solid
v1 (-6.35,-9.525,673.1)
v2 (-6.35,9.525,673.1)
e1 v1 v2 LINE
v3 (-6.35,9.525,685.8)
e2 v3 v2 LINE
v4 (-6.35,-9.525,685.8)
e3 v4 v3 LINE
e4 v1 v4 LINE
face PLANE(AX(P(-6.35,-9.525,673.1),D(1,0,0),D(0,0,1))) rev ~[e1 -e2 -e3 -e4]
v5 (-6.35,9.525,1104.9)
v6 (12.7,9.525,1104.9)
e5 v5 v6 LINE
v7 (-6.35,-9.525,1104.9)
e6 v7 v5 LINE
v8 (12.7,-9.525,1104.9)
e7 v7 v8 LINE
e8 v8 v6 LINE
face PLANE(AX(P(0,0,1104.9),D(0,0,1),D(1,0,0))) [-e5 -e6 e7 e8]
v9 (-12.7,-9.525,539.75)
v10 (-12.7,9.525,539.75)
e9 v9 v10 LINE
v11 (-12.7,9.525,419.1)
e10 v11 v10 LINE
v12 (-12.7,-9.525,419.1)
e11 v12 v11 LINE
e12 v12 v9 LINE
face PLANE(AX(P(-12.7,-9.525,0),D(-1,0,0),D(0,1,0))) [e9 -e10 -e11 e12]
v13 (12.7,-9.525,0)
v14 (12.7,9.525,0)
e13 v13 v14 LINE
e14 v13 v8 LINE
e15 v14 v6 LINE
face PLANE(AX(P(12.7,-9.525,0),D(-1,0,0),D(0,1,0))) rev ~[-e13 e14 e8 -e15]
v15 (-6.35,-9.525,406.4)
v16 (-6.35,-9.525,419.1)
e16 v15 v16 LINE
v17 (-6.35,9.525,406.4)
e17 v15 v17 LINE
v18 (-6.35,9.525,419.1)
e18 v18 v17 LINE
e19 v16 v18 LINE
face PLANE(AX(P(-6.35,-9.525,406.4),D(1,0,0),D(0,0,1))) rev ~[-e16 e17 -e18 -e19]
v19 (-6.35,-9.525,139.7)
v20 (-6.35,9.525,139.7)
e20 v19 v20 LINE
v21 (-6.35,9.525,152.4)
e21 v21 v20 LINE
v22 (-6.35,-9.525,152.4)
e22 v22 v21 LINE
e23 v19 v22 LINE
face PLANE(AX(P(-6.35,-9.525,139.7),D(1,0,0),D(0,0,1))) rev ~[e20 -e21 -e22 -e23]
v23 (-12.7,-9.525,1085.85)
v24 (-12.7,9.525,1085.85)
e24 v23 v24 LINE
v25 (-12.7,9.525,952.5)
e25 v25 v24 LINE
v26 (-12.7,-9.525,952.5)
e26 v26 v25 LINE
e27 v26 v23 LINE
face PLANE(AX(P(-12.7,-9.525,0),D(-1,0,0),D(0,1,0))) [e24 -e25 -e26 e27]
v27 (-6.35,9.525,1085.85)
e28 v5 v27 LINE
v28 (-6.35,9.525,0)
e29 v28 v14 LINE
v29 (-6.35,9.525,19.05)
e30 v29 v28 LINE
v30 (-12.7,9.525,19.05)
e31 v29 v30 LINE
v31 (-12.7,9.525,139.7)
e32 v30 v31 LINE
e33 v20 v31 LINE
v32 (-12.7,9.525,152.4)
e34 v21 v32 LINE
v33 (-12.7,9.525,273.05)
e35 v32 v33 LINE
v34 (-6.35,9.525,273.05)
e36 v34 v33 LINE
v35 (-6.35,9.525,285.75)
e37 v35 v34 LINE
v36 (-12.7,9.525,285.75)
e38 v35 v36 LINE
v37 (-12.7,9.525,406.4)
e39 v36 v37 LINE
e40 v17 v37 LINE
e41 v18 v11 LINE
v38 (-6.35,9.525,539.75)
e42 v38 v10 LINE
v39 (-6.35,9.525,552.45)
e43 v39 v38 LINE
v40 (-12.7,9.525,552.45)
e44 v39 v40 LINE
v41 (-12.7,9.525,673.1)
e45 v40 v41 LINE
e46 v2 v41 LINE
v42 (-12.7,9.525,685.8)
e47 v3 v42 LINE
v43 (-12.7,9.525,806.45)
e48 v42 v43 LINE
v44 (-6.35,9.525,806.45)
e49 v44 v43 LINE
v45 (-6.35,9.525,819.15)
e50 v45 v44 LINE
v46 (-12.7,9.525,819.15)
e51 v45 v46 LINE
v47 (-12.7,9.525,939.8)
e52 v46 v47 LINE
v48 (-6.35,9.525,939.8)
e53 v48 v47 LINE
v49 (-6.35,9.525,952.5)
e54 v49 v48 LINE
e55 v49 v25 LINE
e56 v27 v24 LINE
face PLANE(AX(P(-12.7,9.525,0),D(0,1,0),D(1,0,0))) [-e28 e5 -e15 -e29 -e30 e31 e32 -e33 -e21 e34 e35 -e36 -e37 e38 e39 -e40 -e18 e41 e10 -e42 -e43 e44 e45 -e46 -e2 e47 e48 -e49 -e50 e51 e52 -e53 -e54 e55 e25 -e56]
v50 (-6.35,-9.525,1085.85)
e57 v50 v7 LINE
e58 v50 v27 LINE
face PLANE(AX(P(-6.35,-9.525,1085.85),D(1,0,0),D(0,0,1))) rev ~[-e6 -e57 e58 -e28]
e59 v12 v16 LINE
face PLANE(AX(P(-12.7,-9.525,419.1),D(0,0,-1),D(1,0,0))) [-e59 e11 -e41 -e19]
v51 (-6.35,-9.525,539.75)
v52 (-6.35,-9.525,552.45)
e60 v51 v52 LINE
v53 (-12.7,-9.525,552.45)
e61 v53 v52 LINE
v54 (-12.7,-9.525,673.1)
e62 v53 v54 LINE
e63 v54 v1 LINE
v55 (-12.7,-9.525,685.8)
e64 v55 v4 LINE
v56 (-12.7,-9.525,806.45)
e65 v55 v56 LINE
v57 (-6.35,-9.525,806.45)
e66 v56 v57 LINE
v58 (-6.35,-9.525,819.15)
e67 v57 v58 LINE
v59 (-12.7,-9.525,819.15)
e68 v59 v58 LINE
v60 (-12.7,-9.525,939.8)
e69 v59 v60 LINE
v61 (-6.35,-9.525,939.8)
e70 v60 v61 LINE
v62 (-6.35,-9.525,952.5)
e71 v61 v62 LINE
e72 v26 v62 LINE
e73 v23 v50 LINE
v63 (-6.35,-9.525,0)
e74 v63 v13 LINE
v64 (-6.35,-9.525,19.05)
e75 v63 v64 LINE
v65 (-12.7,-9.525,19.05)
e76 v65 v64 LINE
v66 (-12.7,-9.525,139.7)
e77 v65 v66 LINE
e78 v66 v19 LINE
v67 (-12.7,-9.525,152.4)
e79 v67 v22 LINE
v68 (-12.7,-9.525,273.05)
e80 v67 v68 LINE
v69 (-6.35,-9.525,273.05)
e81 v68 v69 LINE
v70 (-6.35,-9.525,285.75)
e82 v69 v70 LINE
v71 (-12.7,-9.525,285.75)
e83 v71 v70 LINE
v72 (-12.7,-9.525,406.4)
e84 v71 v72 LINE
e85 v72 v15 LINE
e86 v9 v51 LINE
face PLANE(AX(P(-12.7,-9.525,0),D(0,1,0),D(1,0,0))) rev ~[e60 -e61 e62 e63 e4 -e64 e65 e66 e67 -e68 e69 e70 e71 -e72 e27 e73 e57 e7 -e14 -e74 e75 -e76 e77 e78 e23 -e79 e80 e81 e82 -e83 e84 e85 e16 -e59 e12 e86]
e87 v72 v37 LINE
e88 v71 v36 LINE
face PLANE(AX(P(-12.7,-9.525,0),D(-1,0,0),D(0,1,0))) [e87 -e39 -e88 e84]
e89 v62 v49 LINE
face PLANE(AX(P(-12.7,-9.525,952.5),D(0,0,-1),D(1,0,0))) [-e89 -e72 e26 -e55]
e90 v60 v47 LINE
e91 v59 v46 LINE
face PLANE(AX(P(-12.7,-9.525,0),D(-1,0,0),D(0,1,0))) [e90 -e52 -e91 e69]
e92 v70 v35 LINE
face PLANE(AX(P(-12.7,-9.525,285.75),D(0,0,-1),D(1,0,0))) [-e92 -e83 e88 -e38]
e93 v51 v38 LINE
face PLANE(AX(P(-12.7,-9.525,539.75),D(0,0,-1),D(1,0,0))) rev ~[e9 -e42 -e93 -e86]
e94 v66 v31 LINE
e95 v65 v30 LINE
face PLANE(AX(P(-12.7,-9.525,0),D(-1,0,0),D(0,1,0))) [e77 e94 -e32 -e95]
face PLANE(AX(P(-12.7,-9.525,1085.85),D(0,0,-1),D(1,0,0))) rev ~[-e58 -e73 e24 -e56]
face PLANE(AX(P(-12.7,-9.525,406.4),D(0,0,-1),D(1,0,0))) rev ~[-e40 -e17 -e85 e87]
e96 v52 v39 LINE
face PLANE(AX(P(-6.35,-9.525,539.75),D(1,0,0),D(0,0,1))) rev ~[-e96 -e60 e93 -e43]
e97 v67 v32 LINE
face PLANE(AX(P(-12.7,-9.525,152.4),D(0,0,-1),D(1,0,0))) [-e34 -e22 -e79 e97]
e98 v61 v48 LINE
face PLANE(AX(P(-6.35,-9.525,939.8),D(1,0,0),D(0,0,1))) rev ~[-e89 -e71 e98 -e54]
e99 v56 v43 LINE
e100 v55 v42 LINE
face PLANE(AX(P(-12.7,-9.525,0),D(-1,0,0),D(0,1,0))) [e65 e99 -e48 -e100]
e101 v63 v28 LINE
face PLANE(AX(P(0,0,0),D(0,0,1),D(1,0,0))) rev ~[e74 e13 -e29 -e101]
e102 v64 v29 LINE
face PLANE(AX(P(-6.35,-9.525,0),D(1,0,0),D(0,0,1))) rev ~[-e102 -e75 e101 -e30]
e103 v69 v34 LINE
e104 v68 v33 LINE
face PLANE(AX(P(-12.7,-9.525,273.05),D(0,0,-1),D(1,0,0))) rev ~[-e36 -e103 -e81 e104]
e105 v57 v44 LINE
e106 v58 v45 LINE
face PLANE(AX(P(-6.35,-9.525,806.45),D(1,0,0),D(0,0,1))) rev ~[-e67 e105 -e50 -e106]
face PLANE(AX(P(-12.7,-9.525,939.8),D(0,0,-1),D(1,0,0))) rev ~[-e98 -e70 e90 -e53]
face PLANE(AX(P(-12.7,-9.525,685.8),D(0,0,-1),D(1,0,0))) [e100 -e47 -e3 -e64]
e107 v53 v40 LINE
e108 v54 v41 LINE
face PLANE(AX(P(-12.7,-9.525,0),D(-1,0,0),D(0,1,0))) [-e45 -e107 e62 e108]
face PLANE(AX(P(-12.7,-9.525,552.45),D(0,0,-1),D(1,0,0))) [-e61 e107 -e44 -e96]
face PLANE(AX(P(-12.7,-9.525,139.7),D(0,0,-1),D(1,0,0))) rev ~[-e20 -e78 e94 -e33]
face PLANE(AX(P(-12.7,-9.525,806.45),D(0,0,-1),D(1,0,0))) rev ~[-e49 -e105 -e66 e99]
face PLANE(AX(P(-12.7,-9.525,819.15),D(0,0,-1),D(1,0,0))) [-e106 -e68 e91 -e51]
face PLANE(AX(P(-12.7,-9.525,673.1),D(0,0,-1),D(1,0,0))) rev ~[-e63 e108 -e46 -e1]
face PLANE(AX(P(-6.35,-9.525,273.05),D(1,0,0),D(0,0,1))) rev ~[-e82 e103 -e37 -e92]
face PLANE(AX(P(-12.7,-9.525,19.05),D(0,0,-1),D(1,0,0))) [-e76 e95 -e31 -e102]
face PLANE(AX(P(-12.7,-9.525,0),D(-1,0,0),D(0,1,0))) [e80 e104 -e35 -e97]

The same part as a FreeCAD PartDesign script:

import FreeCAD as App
import Part
import Sketcher
from FreeCAD import Vector
Q = App.Units.Quantity

doc = App.newDocument("Part")
params = doc.addObject("Spreadsheet::Sheet", "Params")
for row, (alias, value) in enumerate([
    ("sketch1_width", "1 in"),
    ("sketch1_height", "0.75 in"),
    ("pad1_length", "43.5 in"),
    ("sketch2_height", "0.5 in"),
    ("sketch2_width", "0.25 in"),
    ("sketch2_height2", "0.75 in"),
], start=1):
    params.set(f"A{row}", alias)
    params.set(f"B{row}", "=" + value)
    params.setAlias(f"B{row}", alias)

body = doc.addObject("PartDesign::Body", "Body")

# Sketch on XY plane
sketch1 = body.newObject("Sketcher::SketchObject", "Sketch")
sketch1.AttachmentSupport = (doc.getObject("XY_Plane"), [""])
sketch1.MapMode = "FlatFace"
sketch1.addGeometry([
    Part.LineSegment(Vector(-13, 10, 0), Vector(-13, -10, 0)),
    Part.LineSegment(Vector(-13, -10, 0), Vector(13, -10, 0)),
    Part.LineSegment(Vector(13, -10, 0), Vector(13, 10, 0)),
    Part.LineSegment(Vector(13, 10, 0), Vector(-13, 10, 0)),
], False)
sketch1.addConstraint([
    Sketcher.Constraint("Coincident", 0, 2, 1, 1),
    Sketcher.Constraint("Coincident", 1, 2, 2, 1),
    Sketcher.Constraint("Coincident", 2, 2, 3, 1),
    Sketcher.Constraint("Coincident", 3, 2, 0, 1),
    Sketcher.Constraint("Vertical", 0),
    Sketcher.Constraint("Horizontal", 1),
    Sketcher.Constraint("Vertical", 2),
    Sketcher.Constraint("Horizontal", 3),
    Sketcher.Constraint("Symmetric", 0, 2, 2, 2, -1, 1),
    Sketcher.Constraint("DistanceX", 1, 1, 1, 2, Q("1 in")),
    Sketcher.Constraint("DistanceY", 0, 2, 0, 1, Q("0.75 in")),
])
sketch1.setExpression("Constraints[9]", "Params.sketch1_width")
sketch1.setExpression("Constraints[10]", "Params.sketch1_height")
pad1 = body.newObject("PartDesign::Pad", "Pad")
pad1.Profile = sketch1
pad1.setExpression("Length", "Params.pad1_length")

# Sketch on XZ plane
sketch2 = body.newObject("Sketcher::SketchObject", "Sketch001")
sketch2.AttachmentSupport = (doc.getObject("XZ_Plane"), [""])
sketch2.MapMode = "FlatFace"
sketch2.AttachmentOffset = App.Placement(Vector(0, 0, 0.375 * 25.4), App.Rotation())
sketch2.addGeometry([
    Part.LineSegment(Vector(-13, 19, 0), Vector(-13, 0, 0)),  # 0
    Part.LineSegment(Vector(-13, 0, 0), Vector(-6, 0, 0)),  # 1
    Part.LineSegment(Vector(-6, 0, 0), Vector(-6, 19, 0)),  # 2
    Part.LineSegment(Vector(-6, 19, 0), Vector(-13, 19, 0)),  # 3
    Part.LineSegment(Vector(-13, 152, 0), Vector(-13, 140, 0)),  # 4
    Part.LineSegment(Vector(-13, 140, 0), Vector(-6, 140, 0)),  # 5
    Part.LineSegment(Vector(-6, 140, 0), Vector(-6, 152, 0)),  # 6
    Part.LineSegment(Vector(-6, 152, 0), Vector(-13, 152, 0)),  # 7
    Part.LineSegment(Vector(-13, 286, 0), Vector(-13, 273, 0)),  # 8
    Part.LineSegment(Vector(-13, 273, 0), Vector(-6, 273, 0)),  # 9
    Part.LineSegment(Vector(-6, 273, 0), Vector(-6, 286, 0)),  # 10
    Part.LineSegment(Vector(-6, 286, 0), Vector(-13, 286, 0)),  # 11
    Part.LineSegment(Vector(-13, 419, 0), Vector(-13, 406, 0)),  # 12
    Part.LineSegment(Vector(-13, 406, 0), Vector(-6, 406, 0)),  # 13
    Part.LineSegment(Vector(-6, 406, 0), Vector(-6, 419, 0)),  # 14
    Part.LineSegment(Vector(-6, 419, 0), Vector(-13, 419, 0)),  # 15
    Part.LineSegment(Vector(-13, 552, 0), Vector(-13, 540, 0)),  # 16
    Part.LineSegment(Vector(-13, 540, 0), Vector(-6, 540, 0)),  # 17
    Part.LineSegment(Vector(-6, 540, 0), Vector(-6, 552, 0)),  # 18
    Part.LineSegment(Vector(-6, 552, 0), Vector(-13, 552, 0)),  # 19
    Part.LineSegment(Vector(-13, 686, 0), Vector(-13, 673, 0)),  # 20
    Part.LineSegment(Vector(-13, 673, 0), Vector(-6, 673, 0)),  # 21
    Part.LineSegment(Vector(-6, 673, 0), Vector(-6, 686, 0)),  # 22
    Part.LineSegment(Vector(-6, 686, 0), Vector(-13, 686, 0)),  # 23
    Part.LineSegment(Vector(-13, 819, 0), Vector(-13, 806, 0)),  # 24
    Part.LineSegment(Vector(-13, 806, 0), Vector(-6, 806, 0)),  # 25
    Part.LineSegment(Vector(-6, 806, 0), Vector(-6, 819, 0)),  # 26
    Part.LineSegment(Vector(-6, 819, 0), Vector(-13, 819, 0)),  # 27
    Part.LineSegment(Vector(-13, 952, 0), Vector(-13, 940, 0)),  # 28
    Part.LineSegment(Vector(-13, 940, 0), Vector(-6, 940, 0)),  # 29
    Part.LineSegment(Vector(-6, 940, 0), Vector(-6, 952, 0)),  # 30
    Part.LineSegment(Vector(-6, 952, 0), Vector(-13, 952, 0)),  # 31
    Part.LineSegment(Vector(-13, 1105, 0), Vector(-13, 1086, 0)),  # 32
    Part.LineSegment(Vector(-13, 1086, 0), Vector(-6, 1086, 0)),  # 33
    Part.LineSegment(Vector(-6, 1086, 0), Vector(-6, 1105, 0)),  # 34
    Part.LineSegment(Vector(-6, 1105, 0), Vector(-13, 1105, 0)),  # 35
], False)
sketch2.addConstraint([
    Sketcher.Constraint("Coincident", 0, 2, 1, 1),
    Sketcher.Constraint("Coincident", 1, 2, 2, 1),
    Sketcher.Constraint("Coincident", 2, 2, 3, 1),
    Sketcher.Constraint("Coincident", 3, 2, 0, 1),
    Sketcher.Constraint("Coincident", 4, 2, 5, 1),
    Sketcher.Constraint("Coincident", 5, 2, 6, 1),
    Sketcher.Constraint("Coincident", 6, 2, 7, 1),
    Sketcher.Constraint("Coincident", 7, 2, 4, 1),
    Sketcher.Constraint("Coincident", 8, 2, 9, 1),
    Sketcher.Constraint("Coincident", 9, 2, 10, 1),
    Sketcher.Constraint("Coincident", 10, 2, 11, 1),
    Sketcher.Constraint("Coincident", 11, 2, 8, 1),
    Sketcher.Constraint("Coincident", 12, 2, 13, 1),
    Sketcher.Constraint("Coincident", 13, 2, 14, 1),
    Sketcher.Constraint("Coincident", 14, 2, 15, 1),
    Sketcher.Constraint("Coincident", 15, 2, 12, 1),
    Sketcher.Constraint("Coincident", 16, 2, 17, 1),
    Sketcher.Constraint("Coincident", 17, 2, 18, 1),
    Sketcher.Constraint("Coincident", 18, 2, 19, 1),
    Sketcher.Constraint("Coincident", 19, 2, 16, 1),
    Sketcher.Constraint("Coincident", 20, 2, 21, 1),
    Sketcher.Constraint("Coincident", 21, 2, 22, 1),
    Sketcher.Constraint("Coincident", 22, 2, 23, 1),
    Sketcher.Constraint("Coincident", 23, 2, 20, 1),
    Sketcher.Constraint("Coincident", 24, 2, 25, 1),
    Sketcher.Constraint("Coincident", 25, 2, 26, 1),
    Sketcher.Constraint("Coincident", 26, 2, 27, 1),
    Sketcher.Constraint("Coincident", 27, 2, 24, 1),
    Sketcher.Constraint("Coincident", 28, 2, 29, 1),
    Sketcher.Constraint("Coincident", 29, 2, 30, 1),
    Sketcher.Constraint("Coincident", 30, 2, 31, 1),
    Sketcher.Constraint("Coincident", 31, 2, 28, 1),
    Sketcher.Constraint("Coincident", 32, 2, 33, 1),
    Sketcher.Constraint("Coincident", 33, 2, 34, 1),
    Sketcher.Constraint("Coincident", 34, 2, 35, 1),
    Sketcher.Constraint("Coincident", 35, 2, 32, 1),
    Sketcher.Constraint("Vertical", 0),
    Sketcher.Constraint("Horizontal", 1),
    Sketcher.Constraint("Vertical", 2),
    Sketcher.Constraint("Horizontal", 3),
    Sketcher.Constraint("Vertical", 4),
    Sketcher.Constraint("Horizontal", 5),
    Sketcher.Constraint("Vertical", 6),
    Sketcher.Constraint("Horizontal", 7),
    Sketcher.Constraint("Vertical", 8),
    Sketcher.Constraint("Horizontal", 9),
    Sketcher.Constraint("Vertical", 10),
    Sketcher.Constraint("Horizontal", 11),
    Sketcher.Constraint("Vertical", 12),
    Sketcher.Constraint("Horizontal", 13),
    Sketcher.Constraint("Vertical", 14),
    Sketcher.Constraint("Horizontal", 15),
    Sketcher.Constraint("Vertical", 16),
    Sketcher.Constraint("Horizontal", 17),
    Sketcher.Constraint("Vertical", 18),
    Sketcher.Constraint("Horizontal", 19),
    Sketcher.Constraint("Vertical", 20),
    Sketcher.Constraint("Horizontal", 21),
    Sketcher.Constraint("Vertical", 22),
    Sketcher.Constraint("Horizontal", 23),
    Sketcher.Constraint("Vertical", 24),
    Sketcher.Constraint("Horizontal", 25),
    Sketcher.Constraint("Vertical", 26),
    Sketcher.Constraint("Horizontal", 27),
    Sketcher.Constraint("Vertical", 28),
    Sketcher.Constraint("Horizontal", 29),
    Sketcher.Constraint("Vertical", 30),
    Sketcher.Constraint("Horizontal", 31),
    Sketcher.Constraint("Vertical", 32),
    Sketcher.Constraint("Horizontal", 33),
    Sketcher.Constraint("Vertical", 34),
    Sketcher.Constraint("Horizontal", 35),
    Sketcher.Constraint("PointOnObject", 0, 2, -1),
    Sketcher.Constraint("Vertical", 3, 2, 4, 2),
    Sketcher.Constraint("Vertical", 2, 2, 5, 2),
    Sketcher.Constraint("Vertical", 7, 2, 8, 2),
    Sketcher.Constraint("Vertical", 6, 2, 9, 2),
    Sketcher.Constraint("Vertical", 11, 2, 12, 2),
    Sketcher.Constraint("Vertical", 10, 2, 13, 2),
    Sketcher.Constraint("Vertical", 15, 2, 16, 2),
    Sketcher.Constraint("Vertical", 14, 2, 17, 2),
    Sketcher.Constraint("Vertical", 19, 2, 20, 2),
    Sketcher.Constraint("Vertical", 18, 2, 21, 2),
    Sketcher.Constraint("Vertical", 23, 2, 24, 2),
    Sketcher.Constraint("Vertical", 22, 2, 25, 2),
    Sketcher.Constraint("Vertical", 27, 2, 28, 2),
    Sketcher.Constraint("Vertical", 26, 2, 29, 2),
    Sketcher.Constraint("Vertical", 31, 2, 32, 2),
    Sketcher.Constraint("Vertical", 30, 2, 33, 2),
    Sketcher.Constraint("Equal", 6, 8),
    Sketcher.Constraint("Equal", 10, 12),
    Sketcher.Constraint("Equal", 14, 16),
    Sketcher.Constraint("Equal", 18, 20),
    Sketcher.Constraint("Equal", 22, 24),
    Sketcher.Constraint("Equal", 26, 28),
    Sketcher.Constraint("Equal", 2, 32),
    Sketcher.Constraint("DistanceY", 4, 2, 4, 1, Q("0.5 in")),
    Sketcher.Constraint("DistanceY", -1, 1, 6, 2, Q("6 in")),
    Sketcher.Constraint("DistanceY", -1, 1, 12, 2, Q("16 in")),
    Sketcher.Constraint("DistanceY", -1, 1, 22, 2, Q("27 in")),
    Sketcher.Constraint("DistanceY", -1, 1, 28, 2, Q("37 in")),
    Sketcher.Constraint("DistanceY", 3, 2, 8, 2, Q("10 in")),
    Sketcher.Constraint("DistanceY", 11, 2, 16, 2, Q("10 in")),
    Sketcher.Constraint("DistanceY", 19, 2, 24, 2, Q("10 in")),
    Sketcher.Constraint("DistanceY", 30, 2, 34, 2, Q("6 in")),
    Sketcher.Constraint("DistanceX", 1, 1, 1, 2, Q("0.25 in")),
    Sketcher.Constraint("DistanceY", 0, 2, 0, 1, Q("0.75 in")),
    Sketcher.Constraint("DistanceX", 0, 2, -1, 1, Q("0.5 in")),
])
sketch2.setExpression("Constraints[96]", "Params.sketch2_height")
sketch2.setExpression("Constraints[105]", "Params.sketch2_width")
sketch2.setExpression("Constraints[106]", "Params.sketch2_height2")
pocket1 = body.newObject("PartDesign::Pocket", "Pocket")
pocket1.Profile = sketch2
pocket1.Type = "ThroughAll"

doc.recompute()
